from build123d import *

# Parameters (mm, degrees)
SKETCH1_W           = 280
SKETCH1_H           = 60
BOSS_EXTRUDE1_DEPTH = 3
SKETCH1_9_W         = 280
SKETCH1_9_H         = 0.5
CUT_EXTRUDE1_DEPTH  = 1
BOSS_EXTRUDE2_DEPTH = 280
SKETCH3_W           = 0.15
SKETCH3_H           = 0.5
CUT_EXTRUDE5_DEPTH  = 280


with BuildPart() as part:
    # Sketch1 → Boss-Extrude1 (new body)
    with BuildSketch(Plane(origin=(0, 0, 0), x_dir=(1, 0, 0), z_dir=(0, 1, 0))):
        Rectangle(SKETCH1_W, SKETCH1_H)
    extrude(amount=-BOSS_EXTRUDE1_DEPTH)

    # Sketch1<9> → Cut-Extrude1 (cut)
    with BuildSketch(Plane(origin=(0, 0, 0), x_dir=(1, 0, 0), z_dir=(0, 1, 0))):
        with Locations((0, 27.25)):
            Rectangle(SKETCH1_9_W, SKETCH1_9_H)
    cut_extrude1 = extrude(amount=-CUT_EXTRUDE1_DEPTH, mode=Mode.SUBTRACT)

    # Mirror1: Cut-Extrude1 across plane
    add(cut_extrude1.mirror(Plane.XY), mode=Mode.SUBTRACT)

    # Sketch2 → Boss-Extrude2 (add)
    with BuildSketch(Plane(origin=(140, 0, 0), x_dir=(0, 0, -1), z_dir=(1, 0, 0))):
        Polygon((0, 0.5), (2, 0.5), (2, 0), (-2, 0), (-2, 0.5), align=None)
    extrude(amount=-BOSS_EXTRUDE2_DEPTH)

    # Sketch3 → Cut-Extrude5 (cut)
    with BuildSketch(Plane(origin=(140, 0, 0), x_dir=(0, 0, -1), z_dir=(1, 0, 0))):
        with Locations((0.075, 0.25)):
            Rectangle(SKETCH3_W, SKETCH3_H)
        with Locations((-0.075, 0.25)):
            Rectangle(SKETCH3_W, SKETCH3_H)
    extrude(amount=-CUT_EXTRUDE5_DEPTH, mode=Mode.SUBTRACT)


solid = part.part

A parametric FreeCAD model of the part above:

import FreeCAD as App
import Part
import Sketcher

V = App.Vector


def add_polygon(sketch, points):
    """Adds a closed chain of lines whose ends are joined by coincident constraints."""
    first, n = sketch.GeometryCount, len(points)
    for a, b in zip(points, points[1:] + points[:1]):
        sketch.addGeometry(Part.LineSegment(App.Vector(*a, 0), App.Vector(*b, 0)), False)
    for i in range(n):
        sketch.addConstraint(Sketcher.Constraint("Coincident", first + i, 2, first + (i + 1) % n, 1))

doc = App.newDocument("Part")
body = doc.addObject("PartDesign::Body", "Body")

# Sketch on XZ plane
sketch1 = doc.addObject("Sketcher::SketchObject", "Sketch")
body.addObject(sketch1)
sketch1.AttachmentSupport = (doc.XZ_Plane, [""])
sketch1.MapMode = "FlatFace"
add_polygon(sketch1, [(-140, -30), (-140, 30), (140, 30), (140, -30)])  # lines 0-3
sketch1.addConstraint([
    Sketcher.Constraint("Vertical", 0),
    Sketcher.Constraint("Horizontal", 1),
    Sketcher.Constraint("Vertical", 2),
    Sketcher.Constraint("Horizontal", 3),
    Sketcher.Constraint("Symmetric", 0, 2, 2, 2, -1, 1),
    Sketcher.Constraint("DistanceX", 1, 1, 1, 2, 280.0),
    Sketcher.Constraint("DistanceY", 0, 1, 0, 2, 60.0),
])
pad1 = doc.addObject("PartDesign::Pad", "Pad")
body.addObject(pad1)
pad1.Profile = sketch1
pad1.Length = 3

# Sketch on XZ plane
sketch2 = doc.addObject("Sketcher::SketchObject", "Sketch001")
body.addObject(sketch2)
sketch2.AttachmentSupport = (doc.XZ_Plane, [""])
sketch2.MapMode = "FlatFace"
add_polygon(sketch2, [(-140, -27.5), (-140, -27), (140, -27), (140, -27.5)])  # lines 0-3
sketch2.addConstraint([
    Sketcher.Constraint("Vertical", 0),
    Sketcher.Constraint("Horizontal", 1),
    Sketcher.Constraint("Vertical", 2),
    Sketcher.Constraint("Horizontal", 3),
    Sketcher.Constraint("DistanceX", 1, 1, 1, 2, 280.0),
    Sketcher.Constraint("DistanceY", 0, 1, 0, 2, 0.5),
    Sketcher.Constraint("DistanceX", 0, 2, -1, 1, 140.0),
    Sketcher.Constraint("DistanceY", 0, 2, -1, 1, 27.0),
])
pocket1 = doc.addObject("PartDesign::Pocket", "Pocket")
body.addObject(pocket1)
pocket1.Profile = sketch2
pocket1.Length = 1
pocket1.Reversed = True
doc.recompute()

mirrored = doc.addObject("PartDesign::Mirrored", "Mirrored")
body.addObject(mirrored)
mirrored.Originals = [pocket1]
mirrored.MirrorPlane = (doc.XY_Plane, [""])
body.Tip = mirrored

# Sketch on YZ plane
sketch3 = doc.addObject("Sketcher::SketchObject", "Sketch002")
body.addObject(sketch3)
sketch3.AttachmentSupport = (doc.YZ_Plane, [""])
sketch3.MapMode = "FlatFace"
sketch3.AttachmentOffset = App.Placement(V(0, 0, 140), App.Rotation())
add_polygon(sketch3, [(0.5, -2), (0.5, 2), (0, 2), (0, -2)])  # lines 0-3
sketch3.addConstraint([
    Sketcher.Constraint("Vertical", 0),
    Sketcher.Constraint("Horizontal", 1),
    Sketcher.Constraint("Vertical", 2),
    Sketcher.Constraint("Horizontal", 3),
    Sketcher.Constraint("Symmetric", 1, 2, 2, 2, -1, 1),
    Sketcher.Constraint("DistanceY", 0, 1, 0, 2, 4.0),
    Sketcher.Constraint("DistanceX", 1, 2, 1, 1, 0.5),
])
pad2 = doc.addObject("PartDesign::Pad", "Pad001")
body.addObject(pad2)
pad2.Profile = sketch3
pad2.Length = 280
pad2.Reversed = True

# Sketch on YZ plane
sketch4 = doc.addObject("Sketcher::SketchObject", "Sketch003")
body.addObject(sketch4)
sketch4.AttachmentSupport = (doc.YZ_Plane, [""])
sketch4.MapMode = "FlatFace"
sketch4.AttachmentOffset = App.Placement(V(0, 0, 140), App.Rotation())
add_polygon(sketch4, [(0, -0.15), (0.5, -0.15), (0.5, 0.15), (0, 0.15)])  # lines 0-3
sketch4.addConstraint([
    Sketcher.Constraint("Horizontal", 0),
    Sketcher.Constraint("Vertical", 1),
    Sketcher.Constraint("Horizontal", 2),
    Sketcher.Constraint("Vertical", 3),
    Sketcher.Constraint("Symmetric", 2, 2, 3, 2, -1, 1),
    Sketcher.Constraint("DistanceX", 0, 1, 0, 2, 0.5),
    Sketcher.Constraint("DistanceY", 1, 1, 1, 2, 0.3),
])
pocket2 = doc.addObject("PartDesign::Pocket", "Pocket001")
body.addObject(pocket2)
pocket2.Profile = sketch4
pocket2.Length = 280

doc.recompute()
